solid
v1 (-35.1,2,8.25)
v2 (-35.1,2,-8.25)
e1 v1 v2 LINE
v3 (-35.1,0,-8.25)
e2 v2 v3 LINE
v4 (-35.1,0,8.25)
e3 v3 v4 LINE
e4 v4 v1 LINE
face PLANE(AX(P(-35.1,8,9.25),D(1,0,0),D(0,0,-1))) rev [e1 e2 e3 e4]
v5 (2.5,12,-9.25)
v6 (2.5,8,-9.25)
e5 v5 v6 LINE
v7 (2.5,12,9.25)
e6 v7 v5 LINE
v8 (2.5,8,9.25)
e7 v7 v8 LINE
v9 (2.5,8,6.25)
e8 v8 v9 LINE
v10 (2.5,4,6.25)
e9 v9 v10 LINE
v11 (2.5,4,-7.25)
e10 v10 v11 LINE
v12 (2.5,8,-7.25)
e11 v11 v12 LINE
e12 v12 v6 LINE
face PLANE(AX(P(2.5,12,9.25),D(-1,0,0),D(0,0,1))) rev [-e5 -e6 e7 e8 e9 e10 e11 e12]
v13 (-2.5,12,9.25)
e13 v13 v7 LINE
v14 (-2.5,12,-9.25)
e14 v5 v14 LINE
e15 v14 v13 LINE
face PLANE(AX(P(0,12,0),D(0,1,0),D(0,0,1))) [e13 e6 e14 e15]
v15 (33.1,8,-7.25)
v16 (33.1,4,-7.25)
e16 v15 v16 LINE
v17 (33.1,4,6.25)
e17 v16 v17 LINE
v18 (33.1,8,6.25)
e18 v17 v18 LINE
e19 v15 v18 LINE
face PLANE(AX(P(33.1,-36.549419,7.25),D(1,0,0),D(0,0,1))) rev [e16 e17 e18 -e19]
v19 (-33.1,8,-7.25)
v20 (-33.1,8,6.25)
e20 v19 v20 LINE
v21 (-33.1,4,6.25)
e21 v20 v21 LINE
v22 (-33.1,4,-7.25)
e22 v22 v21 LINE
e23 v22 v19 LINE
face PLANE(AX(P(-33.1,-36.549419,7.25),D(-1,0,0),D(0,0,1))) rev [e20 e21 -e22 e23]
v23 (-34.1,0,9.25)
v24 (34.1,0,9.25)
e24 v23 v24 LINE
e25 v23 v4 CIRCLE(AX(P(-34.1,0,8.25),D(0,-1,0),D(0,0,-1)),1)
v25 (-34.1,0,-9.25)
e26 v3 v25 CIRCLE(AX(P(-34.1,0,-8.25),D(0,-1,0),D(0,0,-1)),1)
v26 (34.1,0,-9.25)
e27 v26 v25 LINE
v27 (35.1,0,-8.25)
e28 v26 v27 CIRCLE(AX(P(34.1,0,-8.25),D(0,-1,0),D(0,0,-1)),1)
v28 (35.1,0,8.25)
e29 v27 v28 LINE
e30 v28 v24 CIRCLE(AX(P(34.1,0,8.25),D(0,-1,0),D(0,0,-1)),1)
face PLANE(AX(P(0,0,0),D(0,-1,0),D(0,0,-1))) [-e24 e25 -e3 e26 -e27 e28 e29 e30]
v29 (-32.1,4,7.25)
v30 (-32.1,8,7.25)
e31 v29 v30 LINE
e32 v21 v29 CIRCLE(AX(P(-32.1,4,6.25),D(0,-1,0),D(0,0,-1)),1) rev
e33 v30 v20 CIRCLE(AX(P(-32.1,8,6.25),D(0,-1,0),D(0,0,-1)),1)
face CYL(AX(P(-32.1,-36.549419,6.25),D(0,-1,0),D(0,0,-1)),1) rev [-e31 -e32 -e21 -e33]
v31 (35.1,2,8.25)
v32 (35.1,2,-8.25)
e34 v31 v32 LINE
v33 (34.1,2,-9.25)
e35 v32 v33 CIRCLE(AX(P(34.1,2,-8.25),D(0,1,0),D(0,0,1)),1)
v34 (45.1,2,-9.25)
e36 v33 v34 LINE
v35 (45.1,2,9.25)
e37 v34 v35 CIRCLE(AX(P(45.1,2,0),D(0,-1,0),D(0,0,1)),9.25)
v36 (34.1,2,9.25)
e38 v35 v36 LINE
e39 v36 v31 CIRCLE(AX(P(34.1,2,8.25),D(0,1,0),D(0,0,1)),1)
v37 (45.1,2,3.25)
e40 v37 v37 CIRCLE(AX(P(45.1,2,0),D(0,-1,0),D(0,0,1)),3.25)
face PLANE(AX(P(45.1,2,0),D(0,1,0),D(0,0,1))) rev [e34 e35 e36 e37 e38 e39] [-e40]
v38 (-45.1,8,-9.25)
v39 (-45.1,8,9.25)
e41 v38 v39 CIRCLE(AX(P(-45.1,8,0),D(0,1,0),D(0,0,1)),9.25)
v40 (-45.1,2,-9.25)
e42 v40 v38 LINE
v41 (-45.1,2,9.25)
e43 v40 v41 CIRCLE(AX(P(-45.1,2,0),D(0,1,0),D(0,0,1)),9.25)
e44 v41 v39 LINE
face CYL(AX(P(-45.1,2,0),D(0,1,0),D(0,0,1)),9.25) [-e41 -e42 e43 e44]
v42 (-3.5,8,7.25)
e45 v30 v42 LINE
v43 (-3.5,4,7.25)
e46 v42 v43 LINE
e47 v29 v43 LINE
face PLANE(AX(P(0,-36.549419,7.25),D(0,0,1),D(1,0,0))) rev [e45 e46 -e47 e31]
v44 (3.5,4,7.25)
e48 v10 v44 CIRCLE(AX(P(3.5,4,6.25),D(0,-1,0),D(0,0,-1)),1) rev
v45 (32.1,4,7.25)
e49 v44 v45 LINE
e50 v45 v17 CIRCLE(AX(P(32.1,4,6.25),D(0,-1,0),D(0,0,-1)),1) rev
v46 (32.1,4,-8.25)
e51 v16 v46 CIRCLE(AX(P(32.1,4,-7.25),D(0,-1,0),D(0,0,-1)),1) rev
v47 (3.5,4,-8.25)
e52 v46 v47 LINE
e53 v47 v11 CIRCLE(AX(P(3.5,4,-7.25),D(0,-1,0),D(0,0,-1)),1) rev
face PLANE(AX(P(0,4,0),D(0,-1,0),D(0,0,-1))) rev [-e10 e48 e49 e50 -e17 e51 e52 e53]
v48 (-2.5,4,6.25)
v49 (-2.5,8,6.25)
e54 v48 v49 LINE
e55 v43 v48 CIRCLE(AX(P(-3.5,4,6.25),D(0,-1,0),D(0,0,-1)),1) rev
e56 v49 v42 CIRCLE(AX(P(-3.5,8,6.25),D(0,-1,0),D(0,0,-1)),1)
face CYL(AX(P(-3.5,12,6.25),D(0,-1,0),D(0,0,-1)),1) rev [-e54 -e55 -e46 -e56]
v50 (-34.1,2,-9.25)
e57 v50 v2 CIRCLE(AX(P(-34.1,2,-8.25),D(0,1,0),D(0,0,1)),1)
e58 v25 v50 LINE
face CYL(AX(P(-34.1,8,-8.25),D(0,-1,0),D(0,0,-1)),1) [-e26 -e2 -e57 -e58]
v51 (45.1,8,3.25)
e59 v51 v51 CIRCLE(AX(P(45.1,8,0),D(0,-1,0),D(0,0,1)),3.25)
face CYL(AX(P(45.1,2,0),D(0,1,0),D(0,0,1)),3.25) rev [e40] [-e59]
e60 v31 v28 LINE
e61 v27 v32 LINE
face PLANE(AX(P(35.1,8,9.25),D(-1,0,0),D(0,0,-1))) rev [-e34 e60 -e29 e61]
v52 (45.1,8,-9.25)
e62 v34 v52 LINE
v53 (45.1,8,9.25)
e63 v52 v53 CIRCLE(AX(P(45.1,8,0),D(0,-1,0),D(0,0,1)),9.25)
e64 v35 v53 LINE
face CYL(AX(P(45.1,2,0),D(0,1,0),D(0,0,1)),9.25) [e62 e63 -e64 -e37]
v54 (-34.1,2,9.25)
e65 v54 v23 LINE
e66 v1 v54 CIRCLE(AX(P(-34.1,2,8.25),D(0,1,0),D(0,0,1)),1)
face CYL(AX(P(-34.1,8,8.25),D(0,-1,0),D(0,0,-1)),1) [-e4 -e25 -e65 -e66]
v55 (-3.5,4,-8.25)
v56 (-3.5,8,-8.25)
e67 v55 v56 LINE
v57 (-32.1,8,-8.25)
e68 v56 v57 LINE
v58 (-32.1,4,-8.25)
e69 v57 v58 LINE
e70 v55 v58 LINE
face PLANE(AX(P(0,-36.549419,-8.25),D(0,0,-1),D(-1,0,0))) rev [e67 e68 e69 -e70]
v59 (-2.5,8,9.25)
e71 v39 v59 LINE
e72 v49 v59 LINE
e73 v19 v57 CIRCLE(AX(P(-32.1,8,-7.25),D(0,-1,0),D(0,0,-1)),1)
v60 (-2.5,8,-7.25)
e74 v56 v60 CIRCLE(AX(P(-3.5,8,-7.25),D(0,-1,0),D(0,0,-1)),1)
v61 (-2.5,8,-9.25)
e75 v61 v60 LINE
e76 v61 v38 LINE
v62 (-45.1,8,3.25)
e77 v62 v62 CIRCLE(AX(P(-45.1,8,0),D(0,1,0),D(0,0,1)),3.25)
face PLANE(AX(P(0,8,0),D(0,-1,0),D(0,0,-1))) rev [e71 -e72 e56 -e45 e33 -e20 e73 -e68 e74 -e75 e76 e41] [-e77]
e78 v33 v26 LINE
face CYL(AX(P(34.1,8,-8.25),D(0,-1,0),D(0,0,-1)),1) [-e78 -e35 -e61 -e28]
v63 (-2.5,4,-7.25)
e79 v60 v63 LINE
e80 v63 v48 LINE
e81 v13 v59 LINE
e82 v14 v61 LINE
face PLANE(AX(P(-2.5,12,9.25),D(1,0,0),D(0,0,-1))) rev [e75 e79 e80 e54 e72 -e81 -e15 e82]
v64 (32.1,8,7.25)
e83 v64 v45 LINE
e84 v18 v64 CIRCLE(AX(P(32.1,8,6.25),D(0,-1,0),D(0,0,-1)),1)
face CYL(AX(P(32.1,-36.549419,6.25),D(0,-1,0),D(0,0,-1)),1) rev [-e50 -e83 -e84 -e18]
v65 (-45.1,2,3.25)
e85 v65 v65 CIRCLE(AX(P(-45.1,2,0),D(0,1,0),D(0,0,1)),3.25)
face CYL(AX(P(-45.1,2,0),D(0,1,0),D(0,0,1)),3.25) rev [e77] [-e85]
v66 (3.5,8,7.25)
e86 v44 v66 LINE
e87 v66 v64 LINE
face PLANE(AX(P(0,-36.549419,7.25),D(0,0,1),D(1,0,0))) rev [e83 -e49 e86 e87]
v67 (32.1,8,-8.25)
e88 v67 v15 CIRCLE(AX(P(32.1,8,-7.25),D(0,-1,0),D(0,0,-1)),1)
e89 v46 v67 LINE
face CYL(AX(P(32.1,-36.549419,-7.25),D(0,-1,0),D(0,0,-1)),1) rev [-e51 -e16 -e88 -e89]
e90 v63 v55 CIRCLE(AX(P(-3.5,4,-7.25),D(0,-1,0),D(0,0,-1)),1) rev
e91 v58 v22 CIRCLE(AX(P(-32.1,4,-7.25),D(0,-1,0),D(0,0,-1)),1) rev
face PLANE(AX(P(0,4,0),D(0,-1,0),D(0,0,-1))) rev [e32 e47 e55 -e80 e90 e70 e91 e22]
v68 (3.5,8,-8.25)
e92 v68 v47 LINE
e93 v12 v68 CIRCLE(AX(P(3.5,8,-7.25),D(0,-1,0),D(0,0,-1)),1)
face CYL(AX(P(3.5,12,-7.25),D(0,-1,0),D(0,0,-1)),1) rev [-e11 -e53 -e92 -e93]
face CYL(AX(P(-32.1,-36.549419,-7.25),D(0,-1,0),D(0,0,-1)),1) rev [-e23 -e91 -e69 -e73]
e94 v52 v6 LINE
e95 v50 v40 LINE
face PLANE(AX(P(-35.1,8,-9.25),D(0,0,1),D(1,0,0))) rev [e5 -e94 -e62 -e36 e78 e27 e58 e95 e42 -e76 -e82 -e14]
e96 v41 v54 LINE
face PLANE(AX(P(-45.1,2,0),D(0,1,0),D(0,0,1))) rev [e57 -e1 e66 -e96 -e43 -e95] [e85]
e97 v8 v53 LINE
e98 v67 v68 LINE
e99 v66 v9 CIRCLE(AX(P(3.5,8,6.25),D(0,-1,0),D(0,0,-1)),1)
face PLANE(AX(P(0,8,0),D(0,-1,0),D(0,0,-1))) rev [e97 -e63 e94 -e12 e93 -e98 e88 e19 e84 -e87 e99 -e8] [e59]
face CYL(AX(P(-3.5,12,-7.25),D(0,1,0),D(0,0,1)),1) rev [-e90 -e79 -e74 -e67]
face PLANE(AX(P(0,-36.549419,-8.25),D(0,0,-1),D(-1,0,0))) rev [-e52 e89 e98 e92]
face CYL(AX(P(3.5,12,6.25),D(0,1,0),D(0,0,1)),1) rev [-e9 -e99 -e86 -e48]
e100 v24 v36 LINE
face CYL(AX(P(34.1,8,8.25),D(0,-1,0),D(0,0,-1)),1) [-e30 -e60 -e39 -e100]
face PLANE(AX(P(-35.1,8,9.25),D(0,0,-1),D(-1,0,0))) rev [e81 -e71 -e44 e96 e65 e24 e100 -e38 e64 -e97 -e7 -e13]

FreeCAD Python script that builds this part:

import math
import FreeCAD as App
import Part
import Sketcher
from FreeCAD import Vector
Q = App.Units.Quantity


def edges_at(feature, points):
    """Names of the edges that pass closest to the given points."""
    edges = feature.Shape.Edges
    near = lambda p: min(range(len(edges)), key=lambda i: edges[i].distToShape(Part.Vertex(*p))[0])
    return sorted({f"Edge{near(p) + 1}" for p in points})

doc = App.newDocument("Part")
body = doc.addObject("PartDesign::Body", "Body")

sketch1 = body.newObject("Sketcher::SketchObject", "Sketch")
sketch1.AttachmentSupport = (doc.getObject("XZ_Plane"), [""])
sketch1.MapMode = "FlatFace"
sketch1.addGeometry(Part.LineSegment(Vector(-35, -9, 0), Vector(-35, 9, 0)), False)
sketch1.addGeometry(Part.LineSegment(Vector(-35, 9, 0), Vector(0, 9, 0)), False)
sketch1.addGeometry(Part.LineSegment(Vector(0, 9, 0), Vector(0, -9, 0)), False)
sketch1.addGeometry(Part.LineSegment(Vector(0, -9, 0), Vector(-35, -9, 0)), False)
sketch1.addConstraint(Sketcher.Constraint("Coincident", 0, 2, 1, 1))
sketch1.addConstraint(Sketcher.Constraint("Coincident", 1, 2, 2, 1))
sketch1.addConstraint(Sketcher.Constraint("Coincident", 2, 2, 3, 1))
sketch1.addConstraint(Sketcher.Constraint("Coincident", 3, 2, 0, 1))
sketch1.addConstraint(Sketcher.Constraint("Vertical", 0))
sketch1.addConstraint(Sketcher.Constraint("Horizontal", 1))
sketch1.addConstraint(Sketcher.Constraint("Vertical", 2))
sketch1.addConstraint(Sketcher.Constraint("Horizontal", 3))
sketch1.addConstraint(Sketcher.Constraint("Symmetric", 1, 2, 2, 2, -1, 1))
sketch1.addConstraint(Sketcher.Constraint("DistanceX", 1, 1, 1, 2, Q("35.1 mm")))
sketch1.addConstraint(Sketcher.Constraint("DistanceY", 0, 1, 0, 2, Q("18.5 mm")))
pad1 = body.newObject("PartDesign::Pad", "Pad")
pad1.Profile = sketch1
pad1.Length = 8
pad1.Reversed = True

sketch2 = body.newObject("Sketcher::SketchObject", "Sketch001")
sketch2.AttachmentSupport = (doc.getObject("XZ_Plane"), [""])
sketch2.MapMode = "FlatFace"
sketch2.AttachmentOffset = App.Placement(Vector(0, 0, -8), App.Rotation())
sketch2.addGeometry(Part.LineSegment(Vector(-35.1, -9.2, 0), Vector(-45.1, -9.2, 0)), False)
sketch2.addGeometry(Part.ArcOfCircle(Part.Circle(Vector(-45.1, 0, 0), Vector(0, 0, 1), 9.2), math.radians(90), math.radians(270)), False)
sketch2.addGeometry(Part.LineSegment(Vector(-45.1, 9.2, 0), Vector(-35.1, 9.2, 0)), False)
sketch2.addGeometry(Part.LineSegment(Vector(-35.1, 9.2, 0), Vector(-35.1, -9.2, 0)), False)
sketch2.addGeometry(Part.Circle(Vector(-45.1, 0, 0), Vector(0, 0, 1), 3.2), False)
sketch2.addConstraint(Sketcher.Constraint("Tangent", 0, 2, 1, 2))
sketch2.addConstraint(Sketcher.Constraint("Tangent", 1, 1, 2, 1))
sketch2.addConstraint(Sketcher.Constraint("Coincident", 2, 2, 3, 1))
sketch2.addConstraint(Sketcher.Constraint("Coincident", 3, 2, 0, 1))
sketch2.addConstraint(Sketcher.Constraint("Horizontal", 0))
sketch2.addConstraint(Sketcher.Constraint("Horizontal", 2))
sketch2.addConstraint(Sketcher.Constraint("Vertical", 3))
sketch2.addConstraint(Sketcher.Constraint("Coincident", 4, 3, 1, 3))
sketch2.addConstraint(Sketcher.Constraint("PointOnObject", 1, 3, -1))
sketch2.addConstraint(Sketcher.Constraint("Diameter", 4, Q("6.5 mm")))
sketch2.addConstraint(Sketcher.Constraint("DistanceX", 0, 2, 0, 1, Q("10 mm")))
sketch2.addConstraint(Sketcher.Constraint("Radius", 1, Q("9.25 mm")))
sketch2.addConstraint(Sketcher.Constraint("DistanceX", 1, 3, -1, 1, Q("45.1 mm")))
pad2 = body.newObject("PartDesign::Pad", "Pad001")
pad2.Profile = sketch2
pad2.Length = 6

sketch3 = body.newObject("Sketcher::SketchObject", "Sketch002")
sketch3.AttachmentSupport = (doc.getObject("XZ_Plane"), [""])
sketch3.MapMode = "FlatFace"
sketch3.AttachmentOffset = App.Placement(Vector(0, 0, -8), App.Rotation())
sketch3.addGeometry(Part.LineSegment(Vector(-33, -8, 0), Vector(-33, 7, 0)), False)
sketch3.addGeometry(Part.LineSegment(Vector(-33, 7, 0), Vector(0, 7, 0)), False)
sketch3.addGeometry(Part.LineSegment(Vector(0, 7, 0), Vector(0, -8, 0)), False)
sketch3.addGeometry(Part.LineSegment(Vector(0, -8, 0), Vector(-33, -8, 0)), False)
sketch3.addConstraint(Sketcher.Constraint("Coincident", 0, 2, 1, 1))
sketch3.addConstraint(Sketcher.Constraint("Coincident", 1, 2, 2, 1))
sketch3.addConstraint(Sketcher.Constraint("Coincident", 2, 2, 3, 1))
sketch3.addConstraint(Sketcher.Constraint("Coincident", 3, 2, 0, 1))
sketch3.addConstraint(Sketcher.Constraint("Vertical", 0))
sketch3.addConstraint(Sketcher.Constraint("Horizontal", 1))
sketch3.addConstraint(Sketcher.Constraint("Vertical", 2))
sketch3.addConstraint(Sketcher.Constraint("Horizontal", 3))
sketch3.addConstraint(Sketcher.Constraint("PointOnObject", 1, 2, -2))
sketch3.addConstraint(Sketcher.Constraint("DistanceX", 1, 1, 1, 2, Q("33.1 mm")))
sketch3.addConstraint(Sketcher.Constraint("DistanceY", 0, 1, 0, 2, Q("15.5 mm")))
sketch3.addConstraint(Sketcher.Constraint("DistanceY", -1, 1, 0, 2, Q("7.25 mm")))
pocket1 = body.newObject("PartDesign::Pocket", "Pocket")
pocket1.Profile = sketch3
pocket1.Length = 4
pocket1.Reversed = True
body2 = doc.addObject("PartDesign::Body", "Body001")
doc.recompute()

body2.BaseFeature = body
doc.recompute()

mirroring = doc.addObject("Part::Mirroring", "Mirroring")
mirroring.Source = body
mirroring.Base = Vector(0, 0, 0)
mirroring.Normal = Vector(1, 0, 0)
body3 = doc.addObject("PartDesign::Body", "Body002")
body3.BaseFeature = mirroring
boolean = body2.newObject("PartDesign::Boolean", "Boolean")
boolean.Type = "Fuse"
boolean.addObjects([body3])
doc.recompute()

sketch4 = body2.newObject("Sketcher::SketchObject", "Sketch003")
sketch4.AttachmentSupport = (doc.getObject("XZ_Plane001"), [""])
sketch4.MapMode = "FlatFace"
sketch4.AttachmentOffset = App.Placement(Vector(0, 0, -4), App.Rotation())
sketch4.addGeometry(Part.LineSegment(Vector(-2, -9, 0), Vector(-2, 9, 0)), False)
sketch4.addGeometry(Part.LineSegment(Vector(-2, 9, 0), Vector(2, 9, 0)), False)
sketch4.addGeometry(Part.LineSegment(Vector(2, 9, 0), Vector(2, -9, 0)), False)
sketch4.addGeometry(Part.LineSegment(Vector(2, -9, 0), Vector(-2, -9, 0)), False)
sketch4.addConstraint(Sketcher.Constraint("Coincident", 0, 2, 1, 1))
sketch4.addConstraint(Sketcher.Constraint("Coincident", 1, 2, 2, 1))
sketch4.addConstraint(Sketcher.Constraint("Coincident", 2, 2, 3, 1))
sketch4.addConstraint(Sketcher.Constraint("Coincident", 3, 2, 0, 1))
sketch4.addConstraint(Sketcher.Constraint("Vertical", 0))
sketch4.addConstraint(Sketcher.Constraint("Horizontal", 1))
sketch4.addConstraint(Sketcher.Constraint("Vertical", 2))
sketch4.addConstraint(Sketcher.Constraint("Horizontal", 3))
sketch4.addConstraint(Sketcher.Constraint("Symmetric", 0, 2, 2, 2, -1, 1))
sketch4.addConstraint(Sketcher.Constraint("DistanceX", 1, 1, 1, 2, Q("5 mm")))
sketch4.addConstraint(Sketcher.Constraint("DistanceY", 0, 1, 0, 2, Q("18.5 mm")))
pad3 = body2.newObject("PartDesign::Pad", "Pad002")
pad3.Profile = sketch4
pad3.Length = 8
pad3.Reversed = True
doc.recompute()

fillet = body2.newObject("PartDesign::Fillet", "Fillet")
fillet.Base = (pad3, edges_at(pad3, [
    (-35.1, 1, 9.25),
    (-35.1, 1, -9.25),
    (-33.1, 6, -8.25),
    (-33.1, 6, 7.25),
    (35.1, 1, -9.25),
    (35.1, 1, 9.25),
    (33.1, 6, -8.25),
    (33.1, 6, 7.25),
    (-2.5, 6, 7.25),
    (2.5, 6, 7.25),
    (2.5, 6, -8.25),
    (-2.5, 6, -8.25),
]))
fillet.Radius = 1
mirroring.Visibility = False

doc.recompute()
